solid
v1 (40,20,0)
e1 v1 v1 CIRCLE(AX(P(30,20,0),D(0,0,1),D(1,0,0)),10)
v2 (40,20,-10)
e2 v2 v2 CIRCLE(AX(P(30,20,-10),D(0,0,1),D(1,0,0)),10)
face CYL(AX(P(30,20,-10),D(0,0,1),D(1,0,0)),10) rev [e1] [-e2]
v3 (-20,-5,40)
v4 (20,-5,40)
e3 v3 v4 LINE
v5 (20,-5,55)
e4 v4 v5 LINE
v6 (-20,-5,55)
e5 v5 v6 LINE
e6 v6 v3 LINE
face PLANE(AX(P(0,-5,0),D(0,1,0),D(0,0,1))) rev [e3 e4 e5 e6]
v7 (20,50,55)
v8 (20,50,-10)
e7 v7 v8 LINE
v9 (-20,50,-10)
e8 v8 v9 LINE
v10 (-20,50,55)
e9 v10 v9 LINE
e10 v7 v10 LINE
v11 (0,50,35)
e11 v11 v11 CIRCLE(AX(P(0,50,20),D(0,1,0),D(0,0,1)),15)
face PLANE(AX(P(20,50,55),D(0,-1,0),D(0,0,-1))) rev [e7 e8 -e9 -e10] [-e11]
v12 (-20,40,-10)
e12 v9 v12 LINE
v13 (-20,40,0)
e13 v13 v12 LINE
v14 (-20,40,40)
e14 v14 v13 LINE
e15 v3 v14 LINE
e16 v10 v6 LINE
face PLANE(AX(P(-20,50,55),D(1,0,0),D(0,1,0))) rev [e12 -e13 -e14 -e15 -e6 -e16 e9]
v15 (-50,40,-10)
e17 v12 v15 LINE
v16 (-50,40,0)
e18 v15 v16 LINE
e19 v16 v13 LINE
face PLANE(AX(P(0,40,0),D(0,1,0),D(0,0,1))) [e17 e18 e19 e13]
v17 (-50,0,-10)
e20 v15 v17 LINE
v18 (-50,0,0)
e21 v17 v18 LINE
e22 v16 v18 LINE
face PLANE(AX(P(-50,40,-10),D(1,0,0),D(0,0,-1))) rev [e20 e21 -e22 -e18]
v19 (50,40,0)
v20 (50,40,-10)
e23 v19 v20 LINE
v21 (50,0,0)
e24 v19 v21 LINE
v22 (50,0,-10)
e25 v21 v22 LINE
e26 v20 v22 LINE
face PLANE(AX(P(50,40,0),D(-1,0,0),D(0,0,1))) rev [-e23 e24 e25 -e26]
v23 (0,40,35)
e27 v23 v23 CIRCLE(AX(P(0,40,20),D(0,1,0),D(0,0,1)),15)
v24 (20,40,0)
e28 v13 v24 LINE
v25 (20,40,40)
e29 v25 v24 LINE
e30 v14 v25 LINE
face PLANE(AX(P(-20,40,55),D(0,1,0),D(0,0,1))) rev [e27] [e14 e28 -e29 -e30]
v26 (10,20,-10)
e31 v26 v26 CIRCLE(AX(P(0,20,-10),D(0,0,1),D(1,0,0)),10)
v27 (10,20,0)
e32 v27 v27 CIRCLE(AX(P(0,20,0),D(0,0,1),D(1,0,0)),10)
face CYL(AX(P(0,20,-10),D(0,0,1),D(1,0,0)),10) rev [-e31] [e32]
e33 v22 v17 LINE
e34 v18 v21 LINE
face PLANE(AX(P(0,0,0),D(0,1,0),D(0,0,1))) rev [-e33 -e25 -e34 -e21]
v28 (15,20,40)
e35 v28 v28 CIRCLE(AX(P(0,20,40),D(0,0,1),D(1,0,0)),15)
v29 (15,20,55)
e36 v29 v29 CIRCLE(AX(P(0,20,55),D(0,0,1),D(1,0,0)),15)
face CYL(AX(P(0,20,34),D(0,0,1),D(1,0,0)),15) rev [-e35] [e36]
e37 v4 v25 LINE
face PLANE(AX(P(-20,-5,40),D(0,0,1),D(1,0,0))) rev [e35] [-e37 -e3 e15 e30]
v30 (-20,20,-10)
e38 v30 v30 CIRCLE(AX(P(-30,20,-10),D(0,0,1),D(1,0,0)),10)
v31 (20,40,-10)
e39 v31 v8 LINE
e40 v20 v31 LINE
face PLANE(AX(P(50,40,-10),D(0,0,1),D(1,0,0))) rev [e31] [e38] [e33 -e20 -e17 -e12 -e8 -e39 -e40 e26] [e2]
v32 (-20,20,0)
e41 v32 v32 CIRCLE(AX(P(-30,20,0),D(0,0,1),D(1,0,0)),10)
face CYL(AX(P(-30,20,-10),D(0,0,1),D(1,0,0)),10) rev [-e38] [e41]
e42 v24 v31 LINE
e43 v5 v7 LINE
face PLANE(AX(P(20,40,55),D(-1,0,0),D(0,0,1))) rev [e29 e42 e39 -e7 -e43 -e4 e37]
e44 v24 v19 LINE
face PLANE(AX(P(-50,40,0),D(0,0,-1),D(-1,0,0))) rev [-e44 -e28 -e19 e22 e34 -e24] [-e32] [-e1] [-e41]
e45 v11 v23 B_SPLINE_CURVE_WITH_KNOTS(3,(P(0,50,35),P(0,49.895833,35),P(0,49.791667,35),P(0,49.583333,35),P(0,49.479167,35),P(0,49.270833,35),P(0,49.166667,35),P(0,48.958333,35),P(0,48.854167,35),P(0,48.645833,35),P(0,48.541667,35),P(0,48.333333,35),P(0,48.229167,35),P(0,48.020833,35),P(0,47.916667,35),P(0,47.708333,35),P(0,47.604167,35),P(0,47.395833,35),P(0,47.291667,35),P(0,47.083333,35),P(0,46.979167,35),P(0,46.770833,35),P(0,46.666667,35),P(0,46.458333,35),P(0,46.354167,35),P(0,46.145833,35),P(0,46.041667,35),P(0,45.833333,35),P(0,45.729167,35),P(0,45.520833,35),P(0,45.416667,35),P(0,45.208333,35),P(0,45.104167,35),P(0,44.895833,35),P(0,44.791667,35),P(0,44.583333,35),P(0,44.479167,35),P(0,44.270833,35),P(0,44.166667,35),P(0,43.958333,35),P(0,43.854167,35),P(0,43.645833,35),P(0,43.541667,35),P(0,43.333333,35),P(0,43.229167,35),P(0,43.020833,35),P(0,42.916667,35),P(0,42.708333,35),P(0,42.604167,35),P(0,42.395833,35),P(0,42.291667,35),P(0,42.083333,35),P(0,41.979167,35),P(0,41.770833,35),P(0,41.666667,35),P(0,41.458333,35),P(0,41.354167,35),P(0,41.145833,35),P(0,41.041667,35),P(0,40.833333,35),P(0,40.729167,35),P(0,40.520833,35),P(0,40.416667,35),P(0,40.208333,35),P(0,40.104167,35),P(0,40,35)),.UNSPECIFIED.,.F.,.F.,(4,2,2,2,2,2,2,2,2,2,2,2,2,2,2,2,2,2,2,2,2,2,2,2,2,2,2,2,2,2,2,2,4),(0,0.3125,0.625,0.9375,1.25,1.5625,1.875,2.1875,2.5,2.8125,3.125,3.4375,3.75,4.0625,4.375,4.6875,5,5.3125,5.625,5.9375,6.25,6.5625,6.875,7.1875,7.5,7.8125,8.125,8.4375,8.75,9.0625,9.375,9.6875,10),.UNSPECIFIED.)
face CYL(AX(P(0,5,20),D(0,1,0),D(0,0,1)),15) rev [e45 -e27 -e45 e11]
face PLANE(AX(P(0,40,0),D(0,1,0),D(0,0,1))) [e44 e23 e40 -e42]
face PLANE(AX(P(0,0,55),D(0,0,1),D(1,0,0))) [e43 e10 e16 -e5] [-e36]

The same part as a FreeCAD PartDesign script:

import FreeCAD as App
import Part
import Sketcher

V = App.Vector


def add_polygon(sketch, points):
    """Adds a closed chain of lines whose ends are joined by coincident constraints."""
    first, n = sketch.GeometryCount, len(points)
    for a, b in zip(points, points[1:] + points[:1]):
        sketch.addGeometry(Part.LineSegment(App.Vector(*a, 0), App.Vector(*b, 0)), False)
    for i in range(n):
        sketch.addConstraint(Sketcher.Constraint("Coincident", first + i, 2, first + (i + 1) % n, 1))

doc = App.newDocument("Part")
body = doc.addObject("PartDesign::Body", "Body")

sketch1 = body.newObject("Sketcher::SketchObject", "Sketch")
sketch1.AttachmentSupport = (doc.getObject("XZ_Plane"), [""])
sketch1.MapMode = "FlatFace"
add_polygon(sketch1, [(-50, -10), (-50, 0), (50, 0), (50, -10)])
sketch1.addConstraint([
    Sketcher.Constraint("Vertical", 0),
    Sketcher.Constraint("Horizontal", 1),
    Sketcher.Constraint("Vertical", 2),
    Sketcher.Constraint("Horizontal", 3),
    Sketcher.Constraint("Symmetric", 0, 2, 1, 2, -1, 1),
    Sketcher.Constraint("DistanceX", 1, 1, 1, 2, 100.0),
    Sketcher.Constraint("DistanceY", 0, 1, 0, 2, 10.0),
])
pad1 = body.newObject("PartDesign::Pad", "Pad")
pad1.Profile = sketch1
pad1.Length = 40
pad1.Reversed = True

sketch2 = body.newObject("Sketcher::SketchObject", "Sketch001")
sketch2.AttachmentSupport = (doc.getObject("XY_Plane"), [""])
sketch2.MapMode = "FlatFace"
sketch2.AttachmentOffset = App.Placement(V(0, 0, -10), App.Rotation())
add_polygon(sketch2, [(20, 50), (20, 40), (-20, 40), (-20, 50)])
sketch2.addConstraint([
    Sketcher.Constraint("Vertical", 0),
    Sketcher.Constraint("Horizontal", 1),
    Sketcher.Constraint("Vertical", 2),
    Sketcher.Constraint("Horizontal", 3),
    Sketcher.Constraint("DistanceX", 1, 2, 1, 1, 40.0),
    Sketcher.Constraint("DistanceY", 0, 2, 0, 1, 10.0),
    Sketcher.Constraint("DistanceX", -1, 1, 0, 2, 20.0),
    Sketcher.Constraint("DistanceY", -1, 1, 0, 2, 40.0),
])
pad2 = body.newObject("PartDesign::Pad", "Pad001")
pad2.Profile = sketch2
pad2.Length = 65

sketch3 = body.newObject("Sketcher::SketchObject", "Sketch002")
sketch3.AttachmentSupport = (doc.getObject("XZ_Plane"), [""])
sketch3.MapMode = "FlatFace"
sketch3.AttachmentOffset = App.Placement(V(0, 0, -40), App.Rotation())
add_polygon(sketch3, [(-20, 55), (-20, 40), (20, 40), (20, 55)])
sketch3.addConstraint([
    Sketcher.Constraint("Vertical", 0),
    Sketcher.Constraint("Horizontal", 1),
    Sketcher.Constraint("Vertical", 2),
    Sketcher.Constraint("Horizontal", 3),
    Sketcher.Constraint("DistanceX", 1, 1, 1, 2, 40.0),
    Sketcher.Constraint("DistanceY", 0, 2, 0, 1, 15.0),
    Sketcher.Constraint("DistanceX", 0, 2, -1, 1, 20.0),
    Sketcher.Constraint("DistanceY", -1, 1, 0, 2, 40.0),
])
pad3 = body.newObject("PartDesign::Pad", "Pad002")
pad3.Profile = sketch3
pad3.Length = 45

sketch4 = body.newObject("Sketcher::SketchObject", "Sketch003")
sketch4.AttachmentSupport = (doc.getObject("XY_Plane"), [""])
sketch4.MapMode = "FlatFace"
sketch4.addGeometry([
    Part.Circle(V(-30, 20, 0), V(0, 0, 1), 10),
    Part.Circle(V(30, 20, 0), V(0, 0, 1), 10),
    Part.Circle(V(0, 20, 0), V(0, 0, 1), 10),
], False)
sketch4.addConstraint([
    Sketcher.Constraint("Equal", 0, 1),
    Sketcher.Constraint("Equal", 1, 2),
    Sketcher.Constraint("Symmetric", 0, 3, 1, 3, -2),
    Sketcher.Constraint("PointOnObject", 2, 3, -2),
    Sketcher.Constraint("Horizontal", 1, 3, 2, 3),
    Sketcher.Constraint("Diameter", 0, 20.0),
    Sketcher.Constraint("DistanceX", 0, 3, -1, 1, 30.0),
    Sketcher.Constraint("DistanceY", -1, 1, 0, 3, 20.0),
])
pocket1 = body.newObject("PartDesign::Pocket", "Pocket")
pocket1.Profile = sketch4
pocket1.Type = "ThroughAll"

sketch5 = body.newObject("Sketcher::SketchObject", "Sketch004")
sketch5.AttachmentSupport = (doc.getObject("XZ_Plane"), [""])
sketch5.MapMode = "FlatFace"
sketch5.AttachmentOffset = App.Placement(V(0, 0, -50), App.Rotation())
sketch5.addGeometry(Part.Circle(V(0, 20, 0), V(0, 0, 1), 15), False)
sketch5.addConstraint([
    Sketcher.Constraint("PointOnObject", 0, 3, -2),
    Sketcher.Constraint("Diameter", 0, 30.0),
    Sketcher.Constraint("DistanceY", -1, 1, 0, 3, 20.0),
])
pocket2 = body.newObject("PartDesign::Pocket", "Pocket001")
pocket2.Profile = sketch5
pocket2.Length = 45
pocket2.Reversed = True

sketch6 = body.newObject("Sketcher::SketchObject", "Sketch005")
sketch6.AttachmentSupport = (doc.getObject("XY_Plane"), [""])
sketch6.MapMode = "FlatFace"
sketch6.AttachmentOffset = App.Placement(V(0, 0, 55), App.Rotation())
sketch6.addGeometry(Part.Circle(V(0, 20, 0), V(0, 0, 1), 15), False)
sketch6.addConstraint([
    Sketcher.Constraint("PointOnObject", 0, 3, -2),
    Sketcher.Constraint("Diameter", 0, 30.0),
    Sketcher.Constraint("DistanceY", -1, 1, 0, 3, 20.0),
])
pocket3 = body.newObject("PartDesign::Pocket", "Pocket002")
pocket3.Profile = sketch6
pocket3.Length = 21

doc.recompute()
